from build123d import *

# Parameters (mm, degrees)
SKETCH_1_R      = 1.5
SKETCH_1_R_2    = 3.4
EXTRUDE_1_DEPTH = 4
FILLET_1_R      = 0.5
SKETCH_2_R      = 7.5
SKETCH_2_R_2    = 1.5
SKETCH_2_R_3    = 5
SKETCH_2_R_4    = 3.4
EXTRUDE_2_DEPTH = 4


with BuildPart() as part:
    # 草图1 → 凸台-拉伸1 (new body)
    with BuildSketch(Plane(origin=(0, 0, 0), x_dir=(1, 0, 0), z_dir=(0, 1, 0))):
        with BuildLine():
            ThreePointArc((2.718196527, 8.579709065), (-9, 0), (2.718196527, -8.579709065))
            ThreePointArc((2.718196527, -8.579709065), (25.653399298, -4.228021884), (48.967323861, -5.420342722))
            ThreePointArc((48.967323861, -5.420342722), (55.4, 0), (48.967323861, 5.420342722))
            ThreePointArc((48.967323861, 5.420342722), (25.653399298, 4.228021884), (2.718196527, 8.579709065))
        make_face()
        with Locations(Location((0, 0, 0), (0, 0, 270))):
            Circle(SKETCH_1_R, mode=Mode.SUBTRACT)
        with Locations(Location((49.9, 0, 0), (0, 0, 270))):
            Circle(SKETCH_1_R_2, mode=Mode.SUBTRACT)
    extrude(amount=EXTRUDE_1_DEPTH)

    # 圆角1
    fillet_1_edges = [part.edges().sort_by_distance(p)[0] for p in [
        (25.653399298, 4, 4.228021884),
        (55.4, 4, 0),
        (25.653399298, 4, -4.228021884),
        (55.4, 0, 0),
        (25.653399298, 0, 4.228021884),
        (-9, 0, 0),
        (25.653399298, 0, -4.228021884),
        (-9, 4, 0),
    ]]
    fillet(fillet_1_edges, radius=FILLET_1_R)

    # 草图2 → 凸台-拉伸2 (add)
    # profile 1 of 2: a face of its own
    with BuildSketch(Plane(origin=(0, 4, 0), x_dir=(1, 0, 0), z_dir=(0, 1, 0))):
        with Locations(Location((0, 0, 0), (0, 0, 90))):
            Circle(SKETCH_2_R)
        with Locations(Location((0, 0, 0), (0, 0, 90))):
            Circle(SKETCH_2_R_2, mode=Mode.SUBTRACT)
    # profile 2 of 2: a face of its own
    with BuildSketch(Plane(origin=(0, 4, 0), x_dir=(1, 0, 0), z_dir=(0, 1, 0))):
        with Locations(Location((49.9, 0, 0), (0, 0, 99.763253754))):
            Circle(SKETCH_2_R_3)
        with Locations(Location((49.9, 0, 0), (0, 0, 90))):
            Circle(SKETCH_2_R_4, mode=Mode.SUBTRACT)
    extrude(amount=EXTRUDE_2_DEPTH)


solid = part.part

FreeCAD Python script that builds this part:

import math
import FreeCAD as App
import Part
import Sketcher

V = App.Vector
Q = App.Units.Quantity


def edges_at(feature, points):
    """Names of the edges that pass closest to the given points."""
    edges = feature.Shape.Edges
    near = lambda p: min(range(len(edges)), key=lambda i: edges[i].distToShape(Part.Vertex(*p))[0])
    return sorted({f"Edge{near(p) + 1}" for p in points})

doc = App.newDocument("Part")
body = doc.addObject("PartDesign::Body", "Body")

# Sketch on XZ plane
sketch1 = doc.addObject("Sketcher::SketchObject", "Sketch")
body.addObject(sketch1)
sketch1.AttachmentSupport = (doc.XZ_Plane, [""])
sketch1.MapMode = "FlatFace"
sketch1.addGeometry(Part.ArcOfCircle(Part.Circle(V(0, 0, 0), V(0, 0, 1), 9), math.radians(72), math.radians(288)), False)
sketch1.addGeometry(Part.ArcOfCircle(Part.Circle(V(32.3, 102.1, 0), V(0, 0, 1), 98.1), math.radians(-108), math.radians(-80)), False)
sketch1.addGeometry(Part.ArcOfCircle(Part.Circle(V(49.9, 0, 0), V(0, 0, 1), 5.5), math.radians(-100), math.radians(100)), False)
sketch1.addGeometry(Part.ArcOfCircle(Part.Circle(V(32.3, -102.1, 0), V(0, 0, 1), 98.1), math.radians(80), math.radians(108)), False)
sketch1.addGeometry(Part.Circle(V(0, 0, 0), V(0, 0, 1), 1.5), False)
sketch1.addGeometry(Part.Circle(V(49.9, 0, 0), V(0, 0, 1), 3.4), False)
sketch1.addConstraint(Sketcher.Constraint("Tangent", 0, 1, 1, 1))
sketch1.addConstraint(Sketcher.Constraint("Tangent", 1, 2, 2, 2))
sketch1.addConstraint(Sketcher.Constraint("Tangent", 2, 1, 3, 1))
sketch1.addConstraint(Sketcher.Constraint("Tangent", 3, 2, 0, 2))
sketch1.addConstraint(Sketcher.Constraint("Coincident", 0, 3, -1, 1))
sketch1.addConstraint(Sketcher.Constraint("Coincident", 4, 3, -1, 1))
sketch1.addConstraint(Sketcher.Constraint("Coincident", 5, 3, 2, 3))
sketch1.addConstraint(Sketcher.Constraint("Equal", 1, 3))
sketch1.addConstraint(Sketcher.Constraint("PointOnObject", 2, 3, -1))
sketch1.addConstraint(Sketcher.Constraint("Diameter", 4, Q("3 mm")))
sketch1.addConstraint(Sketcher.Constraint("Radius", 0, Q("9 mm")))
sketch1.addConstraint(Sketcher.Constraint("Diameter", 5, Q("6.8 mm")))
sketch1.addConstraint(Sketcher.Constraint("Radius", 2, Q("5.5 mm")))
sketch1.addConstraint(Sketcher.Constraint("DistanceX", -1, 1, 2, 3, Q("49.9 mm")))
sketch1.addConstraint(Sketcher.Constraint("Radius", 1, Q("98.06869 mm")))
pad1 = doc.addObject("PartDesign::Pad", "Pad")
body.addObject(pad1)
pad1.Profile = sketch1
pad1.Length = 4
pad1.Reversed = True
doc.recompute()

fillet = doc.addObject("PartDesign::Fillet", "Fillet")
body.addObject(fillet)
fillet.Base = (pad1, edges_at(pad1, [
    (25.653, 4, 4.228),
    (55.4, 4, 0),
    (25.653, 4, -4.228),
    (55.4, 0, 0),
    (25.653, 0, 4.228),
    (-9, 0, 0),
    (25.653, 0, -4.228),
    (-9, 4, 0),
]))
fillet.Radius = 0.5

# Sketch on XZ plane
sketch2 = doc.addObject("Sketcher::SketchObject", "Sketch001")
body.addObject(sketch2)
sketch2.AttachmentSupport = (doc.XZ_Plane, [""])
sketch2.MapMode = "FlatFace"
sketch2.AttachmentOffset = App.Placement(V(0, 0, -4), App.Rotation())
sketch2.addGeometry(Part.Circle(V(0, 0, 0), V(0, 0, 1), 7.5), False)
sketch2.addGeometry(Part.Circle(V(0, 0, 0), V(0, 0, 1), 1.5), False)
sketch2.addGeometry(Part.Circle(V(49.9, 0, 0), V(0, 0, 1), 5), False)
sketch2.addGeometry(Part.Circle(V(49.9, 0, 0), V(0, 0, 1), 3.4), False)
sketch2.addConstraint(Sketcher.Constraint("Coincident", 0, 3, -1, 1))
sketch2.addConstraint(Sketcher.Constraint("Coincident", 1, 3, -1, 1))
sketch2.addConstraint(Sketcher.Constraint("Coincident", 3, 3, 2, 3))
sketch2.addConstraint(Sketcher.Constraint("PointOnObject", 2, 3, -1))
sketch2.addConstraint(Sketcher.Constraint("Diameter", 0, Q("15 mm")))
sketch2.addConstraint(Sketcher.Constraint("Diameter", 1, Q("3 mm")))
sketch2.addConstraint(Sketcher.Constraint("Diameter", 2, Q("10 mm")))
sketch2.addConstraint(Sketcher.Constraint("Diameter", 3, Q("6.8 mm")))
sketch2.addConstraint(Sketcher.Constraint("DistanceX", -1, 1, 2, 3, Q("49.9 mm")))
pad2 = doc.addObject("PartDesign::Pad", "Pad001")
body.addObject(pad2)
pad2.Profile = sketch2
pad2.Length = 4
pad2.Reversed = True

doc.recompute()
